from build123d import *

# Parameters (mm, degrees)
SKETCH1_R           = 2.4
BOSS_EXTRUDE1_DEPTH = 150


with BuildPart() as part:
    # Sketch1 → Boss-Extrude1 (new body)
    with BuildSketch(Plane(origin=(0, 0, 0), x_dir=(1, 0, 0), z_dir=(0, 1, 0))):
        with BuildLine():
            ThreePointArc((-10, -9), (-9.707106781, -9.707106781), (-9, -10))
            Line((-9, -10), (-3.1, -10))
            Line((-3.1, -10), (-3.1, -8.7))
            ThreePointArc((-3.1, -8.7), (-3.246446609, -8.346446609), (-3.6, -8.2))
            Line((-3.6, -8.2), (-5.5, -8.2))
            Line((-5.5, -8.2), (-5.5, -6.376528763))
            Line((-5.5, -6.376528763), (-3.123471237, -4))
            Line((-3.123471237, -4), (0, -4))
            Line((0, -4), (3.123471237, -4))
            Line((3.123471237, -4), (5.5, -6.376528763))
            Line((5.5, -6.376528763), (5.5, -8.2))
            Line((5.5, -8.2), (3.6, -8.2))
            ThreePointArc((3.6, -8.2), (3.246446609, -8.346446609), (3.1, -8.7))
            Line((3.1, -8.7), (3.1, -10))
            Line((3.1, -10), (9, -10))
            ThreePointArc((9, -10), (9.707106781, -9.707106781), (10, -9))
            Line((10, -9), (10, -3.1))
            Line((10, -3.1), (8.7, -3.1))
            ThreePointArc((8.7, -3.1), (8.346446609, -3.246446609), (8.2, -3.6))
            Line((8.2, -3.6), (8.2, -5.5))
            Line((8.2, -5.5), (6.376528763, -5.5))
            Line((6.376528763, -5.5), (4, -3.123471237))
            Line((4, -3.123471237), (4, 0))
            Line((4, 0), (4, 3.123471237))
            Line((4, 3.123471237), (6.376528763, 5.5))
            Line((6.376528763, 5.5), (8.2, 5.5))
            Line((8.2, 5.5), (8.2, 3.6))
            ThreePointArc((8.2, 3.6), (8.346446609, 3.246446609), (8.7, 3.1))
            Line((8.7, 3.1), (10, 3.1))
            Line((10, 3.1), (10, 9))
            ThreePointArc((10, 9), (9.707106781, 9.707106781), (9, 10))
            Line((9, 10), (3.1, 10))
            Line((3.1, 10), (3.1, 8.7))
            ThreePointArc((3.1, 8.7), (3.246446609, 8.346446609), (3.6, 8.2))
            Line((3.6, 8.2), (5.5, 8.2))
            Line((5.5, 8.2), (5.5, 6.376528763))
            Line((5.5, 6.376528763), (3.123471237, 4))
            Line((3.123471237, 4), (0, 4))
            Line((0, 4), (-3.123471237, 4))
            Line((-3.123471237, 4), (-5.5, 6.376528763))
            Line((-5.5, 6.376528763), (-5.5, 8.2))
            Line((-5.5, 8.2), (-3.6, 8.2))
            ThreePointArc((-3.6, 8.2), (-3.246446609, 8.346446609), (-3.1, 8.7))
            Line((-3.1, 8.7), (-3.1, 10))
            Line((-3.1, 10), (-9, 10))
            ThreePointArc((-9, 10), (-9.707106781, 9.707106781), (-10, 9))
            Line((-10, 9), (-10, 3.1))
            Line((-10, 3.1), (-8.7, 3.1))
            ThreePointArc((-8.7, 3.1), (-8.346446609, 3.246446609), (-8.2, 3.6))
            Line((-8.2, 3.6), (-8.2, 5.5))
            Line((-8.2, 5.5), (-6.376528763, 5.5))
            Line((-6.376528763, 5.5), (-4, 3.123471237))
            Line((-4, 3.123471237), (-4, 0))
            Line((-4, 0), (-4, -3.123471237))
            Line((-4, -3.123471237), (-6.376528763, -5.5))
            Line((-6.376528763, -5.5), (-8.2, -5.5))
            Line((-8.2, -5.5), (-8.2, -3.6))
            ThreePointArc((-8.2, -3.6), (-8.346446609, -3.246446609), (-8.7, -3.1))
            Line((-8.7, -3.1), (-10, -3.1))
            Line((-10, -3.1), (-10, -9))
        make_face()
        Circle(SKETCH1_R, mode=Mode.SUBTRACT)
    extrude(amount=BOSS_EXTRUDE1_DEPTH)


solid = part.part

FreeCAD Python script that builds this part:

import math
import FreeCAD as App
import Part
import Sketcher
from FreeCAD import Vector

doc = App.newDocument("Part")
body = doc.addObject("PartDesign::Body", "Body")

# Sketch on XZ plane
sketch1 = body.newObject("Sketcher::SketchObject", "Sketch")
sketch1.AttachmentSupport = (doc.getObject("XZ_Plane"), [""])
sketch1.MapMode = "FlatFace"
sketch1.addGeometry(Part.ArcOfCircle(Part.Circle(Vector(-9, 9, 0), Vector(0, 0, 1), 1), math.radians(90), math.radians(180)), False)
sketch1.addGeometry(Part.LineSegment(Vector(-9, 10, 0), Vector(-3.1, 10, 0)), False)
sketch1.addGeometry(Part.LineSegment(Vector(-3.1, 10, 0), Vector(-3.1, 8.7, 0)), False)
sketch1.addGeometry(Part.ArcOfCircle(Part.Circle(Vector(-3.6, 8.7, 0), Vector(0, 0, 1), 0.5), math.radians(-90), math.radians(0)), False)
sketch1.addGeometry(Part.LineSegment(Vector(-3.6, 8.2, 0), Vector(-5.5, 8.2, 0)), False)
sketch1.addGeometry(Part.LineSegment(Vector(-5.5, 8.2, 0), Vector(-5.5, 6.38, 0)), False)
sketch1.addGeometry(Part.LineSegment(Vector(-5.5, 6.38, 0), Vector(-3.12, 4, 0)), False)
sketch1.addGeometry(Part.LineSegment(Vector(-3.12, 4, 0), Vector(3.12, 4, 0)), False)
sketch1.addGeometry(Part.LineSegment(Vector(3.12, 4, 0), Vector(5.5, 6.38, 0)), False)
sketch1.addGeometry(Part.LineSegment(Vector(5.5, 6.38, 0), Vector(5.5, 8.2, 0)), False)
sketch1.addGeometry(Part.LineSegment(Vector(5.5, 8.2, 0), Vector(3.6, 8.2, 0)), False)
sketch1.addGeometry(Part.ArcOfCircle(Part.Circle(Vector(3.6, 8.7, 0), Vector(0, 0, 1), 0.5), math.radians(180), math.radians(270)), False)
sketch1.addGeometry(Part.LineSegment(Vector(3.1, 8.7, 0), Vector(3.1, 10, 0)), False)
sketch1.addGeometry(Part.LineSegment(Vector(3.1, 10, 0), Vector(9, 10, 0)), False)
sketch1.addGeometry(Part.ArcOfCircle(Part.Circle(Vector(9, 9, 0), Vector(0, 0, 1), 1), math.radians(0), math.radians(90)), False)
sketch1.addGeometry(Part.LineSegment(Vector(10, 9, 0), Vector(10, 3.1, 0)), False)
sketch1.addGeometry(Part.LineSegment(Vector(10, 3.1, 0), Vector(8.7, 3.1, 0)), False)
sketch1.addGeometry(Part.ArcOfCircle(Part.Circle(Vector(8.7, 3.6, 0), Vector(0, 0, 1), 0.5), math.radians(180), math.radians(270)), False)
sketch1.addGeometry(Part.LineSegment(Vector(8.2, 3.6, 0), Vector(8.2, 5.5, 0)), False)
sketch1.addGeometry(Part.LineSegment(Vector(8.2, 5.5, 0), Vector(6.38, 5.5, 0)), False)
sketch1.addGeometry(Part.LineSegment(Vector(6.38, 5.5, 0), Vector(4, 3.12, 0)), False)
sketch1.addGeometry(Part.LineSegment(Vector(4, 3.12, 0), Vector(4, -3.12, 0)), False)
sketch1.addGeometry(Part.LineSegment(Vector(4, -3.12, 0), Vector(6.38, -5.5, 0)), False)
sketch1.addGeometry(Part.LineSegment(Vector(6.38, -5.5, 0), Vector(8.2, -5.5, 0)), False)
sketch1.addGeometry(Part.LineSegment(Vector(8.2, -5.5, 0), Vector(8.2, -3.6, 0)), False)
sketch1.addGeometry(Part.ArcOfCircle(Part.Circle(Vector(8.7, -3.6, 0), Vector(0, 0, 1), 0.5), math.radians(90), math.radians(180)), False)
sketch1.addGeometry(Part.LineSegment(Vector(8.7, -3.1, 0), Vector(10, -3.1, 0)), False)
sketch1.addGeometry(Part.LineSegment(Vector(10, -3.1, 0), Vector(10, -9, 0)), False)
sketch1.addGeometry(Part.ArcOfCircle(Part.Circle(Vector(9, -9, 0), Vector(0, 0, 1), 1), math.radians(-90), math.radians(0)), False)
sketch1.addGeometry(Part.LineSegment(Vector(9, -10, 0), Vector(3.1, -10, 0)), False)
sketch1.addGeometry(Part.LineSegment(Vector(3.1, -10, 0), Vector(3.1, -8.7, 0)), False)
sketch1.addGeometry(Part.ArcOfCircle(Part.Circle(Vector(3.6, -8.7, 0), Vector(0, 0, 1), 0.5), math.radians(90), math.radians(180)), False)
sketch1.addGeometry(Part.LineSegment(Vector(3.6, -8.2, 0), Vector(5.5, -8.2, 0)), False)
sketch1.addGeometry(Part.LineSegment(Vector(5.5, -8.2, 0), Vector(5.5, -6.38, 0)), False)
sketch1.addGeometry(Part.LineSegment(Vector(5.5, -6.38, 0), Vector(3.12, -4, 0)), False)
sketch1.addGeometry(Part.LineSegment(Vector(3.12, -4, 0), Vector(-3.12, -4, 0)), False)
sketch1.addGeometry(Part.LineSegment(Vector(-3.12, -4, 0), Vector(-5.5, -6.38, 0)), False)
sketch1.addGeometry(Part.LineSegment(Vector(-5.5, -6.38, 0), Vector(-5.5, -8.2, 0)), False)
sketch1.addGeometry(Part.LineSegment(Vector(-5.5, -8.2, 0), Vector(-3.6, -8.2, 0)), False)
sketch1.addGeometry(Part.ArcOfCircle(Part.Circle(Vector(-3.6, -8.7, 0), Vector(0, 0, 1), 0.5), math.radians(0), math.radians(90)), False)
sketch1.addGeometry(Part.LineSegment(Vector(-3.1, -8.7, 0), Vector(-3.1, -10, 0)), False)
sketch1.addGeometry(Part.LineSegment(Vector(-3.1, -10, 0), Vector(-9, -10, 0)), False)
sketch1.addGeometry(Part.ArcOfCircle(Part.Circle(Vector(-9, -9, 0), Vector(0, 0, 1), 1), math.radians(-180), math.radians(-90)), False)
sketch1.addGeometry(Part.LineSegment(Vector(-10, -9, 0), Vector(-10, -3.1, 0)), False)
sketch1.addGeometry(Part.LineSegment(Vector(-10, -3.1, 0), Vector(-8.7, -3.1, 0)), False)
sketch1.addGeometry(Part.ArcOfCircle(Part.Circle(Vector(-8.7, -3.6, 0), Vector(0, 0, 1), 0.5), math.radians(0), math.radians(90)), False)
sketch1.addGeometry(Part.LineSegment(Vector(-8.2, -3.6, 0), Vector(-8.2, -5.5, 0)), False)
sketch1.addGeometry(Part.LineSegment(Vector(-8.2, -5.5, 0), Vector(-6.38, -5.5, 0)), False)
sketch1.addGeometry(Part.LineSegment(Vector(-6.38, -5.5, 0), Vector(-4, -3.12, 0)), False)
sketch1.addGeometry(Part.LineSegment(Vector(-4, -3.12, 0), Vector(-4, 3.12, 0)), False)
sketch1.addGeometry(Part.LineSegment(Vector(-4, 3.12, 0), Vector(-6.38, 5.5, 0)), False)
sketch1.addGeometry(Part.LineSegment(Vector(-6.38, 5.5, 0), Vector(-8.2, 5.5, 0)), False)
sketch1.addGeometry(Part.LineSegment(Vector(-8.2, 5.5, 0), Vector(-8.2, 3.6, 0)), False)
sketch1.addGeometry(Part.ArcOfCircle(Part.Circle(Vector(-8.7, 3.6, 0), Vector(0, 0, 1), 0.5), math.radians(-90), math.radians(0)), False)
sketch1.addGeometry(Part.LineSegment(Vector(-8.7, 3.1, 0), Vector(-10, 3.1, 0)), False)
sketch1.addGeometry(Part.LineSegment(Vector(-10, 3.1, 0), Vector(-10, 9, 0)), False)
sketch1.addGeometry(Part.Circle(Vector(0, 0, 0), Vector(0, 0, 1), 2.4), False)
sketch1.addConstraint(Sketcher.Constraint("Tangent", 0, 1, 1, 1))
sketch1.addConstraint(Sketcher.Constraint("Coincident", 1, 2, 2, 1))
sketch1.addConstraint(Sketcher.Constraint("Tangent", 2, 2, 3, 2))
sketch1.addConstraint(Sketcher.Constraint("Tangent", 3, 1, 4, 1))
sketch1.addConstraint(Sketcher.Constraint("Coincident", 4, 2, 5, 1))
sketch1.addConstraint(Sketcher.Constraint("Coincident", 5, 2, 6, 1))
sketch1.addConstraint(Sketcher.Constraint("Coincident", 6, 2, 7, 1))
sketch1.addConstraint(Sketcher.Constraint("Coincident", 7, 2, 8, 1))
sketch1.addConstraint(Sketcher.Constraint("Coincident", 8, 2, 9, 1))
sketch1.addConstraint(Sketcher.Constraint("Coincident", 9, 2, 10, 1))
sketch1.addConstraint(Sketcher.Constraint("Tangent", 10, 2, 11, 2))
sketch1.addConstraint(Sketcher.Constraint("Tangent", 11, 1, 12, 1))
sketch1.addConstraint(Sketcher.Constraint("Coincident", 12, 2, 13, 1))
sketch1.addConstraint(Sketcher.Constraint("Tangent", 13, 2, 14, 2))
sketch1.addConstraint(Sketcher.Constraint("Tangent", 14, 1, 15, 1))
sketch1.addConstraint(Sketcher.Constraint("Coincident", 15, 2, 16, 1))
sketch1.addConstraint(Sketcher.Constraint("Tangent", 16, 2, 17, 2))
sketch1.addConstraint(Sketcher.Constraint("Tangent", 17, 1, 18, 1))
sketch1.addConstraint(Sketcher.Constraint("Coincident", 18, 2, 19, 1))
sketch1.addConstraint(Sketcher.Constraint("Coincident", 19, 2, 20, 1))
sketch1.addConstraint(Sketcher.Constraint("Coincident", 20, 2, 21, 1))
sketch1.addConstraint(Sketcher.Constraint("Coincident", 21, 2, 22, 1))
sketch1.addConstraint(Sketcher.Constraint("Coincident", 22, 2, 23, 1))
sketch1.addConstraint(Sketcher.Constraint("Coincident", 23, 2, 24, 1))
sketch1.addConstraint(Sketcher.Constraint("Tangent", 24, 2, 25, 2))
sketch1.addConstraint(Sketcher.Constraint("Tangent", 25, 1, 26, 1))
sketch1.addConstraint(Sketcher.Constraint("Coincident", 26, 2, 27, 1))
sketch1.addConstraint(Sketcher.Constraint("Tangent", 27, 2, 28, 2))
sketch1.addConstraint(Sketcher.Constraint("Tangent", 28, 1, 29, 1))
sketch1.addConstraint(Sketcher.Constraint("Coincident", 29, 2, 30, 1))
sketch1.addConstraint(Sketcher.Constraint("Tangent", 30, 2, 31, 2))
sketch1.addConstraint(Sketcher.Constraint("Tangent", 31, 1, 32, 1))
sketch1.addConstraint(Sketcher.Constraint("Coincident", 32, 2, 33, 1))
sketch1.addConstraint(Sketcher.Constraint("Coincident", 33, 2, 34, 1))
sketch1.addConstraint(Sketcher.Constraint("Coincident", 34, 2, 35, 1))
sketch1.addConstraint(Sketcher.Constraint("Coincident", 35, 2, 36, 1))
sketch1.addConstraint(Sketcher.Constraint("Coincident", 36, 2, 37, 1))
sketch1.addConstraint(Sketcher.Constraint("Coincident", 37, 2, 38, 1))
sketch1.addConstraint(Sketcher.Constraint("Tangent", 38, 2, 39, 2))
sketch1.addConstraint(Sketcher.Constraint("Tangent", 39, 1, 40, 1))
sketch1.addConstraint(Sketcher.Constraint("Coincident", 40, 2, 41, 1))
sketch1.addConstraint(Sketcher.Constraint("Tangent", 41, 2, 42, 2))
sketch1.addConstraint(Sketcher.Constraint("Tangent", 42, 1, 43, 1))
sketch1.addConstraint(Sketcher.Constraint("Coincident", 43, 2, 44, 1))
sketch1.addConstraint(Sketcher.Constraint("Tangent", 44, 2, 45, 2))
sketch1.addConstraint(Sketcher.Constraint("Tangent", 45, 1, 46, 1))
sketch1.addConstraint(Sketcher.Constraint("Coincident", 46, 2, 47, 1))
sketch1.addConstraint(Sketcher.Constraint("Coincident", 47, 2, 48, 1))
sketch1.addConstraint(Sketcher.Constraint("Coincident", 48, 2, 49, 1))
sketch1.addConstraint(Sketcher.Constraint("Coincident", 49, 2, 50, 1))
sketch1.addConstraint(Sketcher.Constraint("Coincident", 50, 2, 51, 1))
sketch1.addConstraint(Sketcher.Constraint("Coincident", 51, 2, 52, 1))
sketch1.addConstraint(Sketcher.Constraint("Tangent", 52, 2, 53, 2))
sketch1.addConstraint(Sketcher.Constraint("Tangent", 53, 1, 54, 1))
sketch1.addConstraint(Sketcher.Constraint("Coincident", 54, 2, 55, 1))
sketch1.addConstraint(Sketcher.Constraint("Tangent", 55, 2, 0, 2))
sketch1.addConstraint(Sketcher.Constraint("Horizontal", 1))
sketch1.addConstraint(Sketcher.Constraint("Vertical", 2))
sketch1.addConstraint(Sketcher.Constraint("Horizontal", 4))
sketch1.addConstraint(Sketcher.Constraint("Vertical", 5))
sketch1.addConstraint(Sketcher.Constraint("Horizontal", 7))
sketch1.addConstraint(Sketcher.Constraint("Vertical", 9))
sketch1.addConstraint(Sketcher.Constraint("Horizontal", 10))
sketch1.addConstraint(Sketcher.Constraint("Vertical", 12))
sketch1.addConstraint(Sketcher.Constraint("Horizontal", 13))
sketch1.addConstraint(Sketcher.Constraint("Vertical", 15))
sketch1.addConstraint(Sketcher.Constraint("Horizontal", 16))
sketch1.addConstraint(Sketcher.Constraint("Vertical", 18))
sketch1.addConstraint(Sketcher.Constraint("Horizontal", 19))
sketch1.addConstraint(Sketcher.Constraint("Vertical", 21))
sketch1.addConstraint(Sketcher.Constraint("Horizontal", 23))
sketch1.addConstraint(Sketcher.Constraint("Vertical", 24))
sketch1.addConstraint(Sketcher.Constraint("Horizontal", 26))
sketch1.addConstraint(Sketcher.Constraint("Vertical", 27))
sketch1.addConstraint(Sketcher.Constraint("Horizontal", 29))
sketch1.addConstraint(Sketcher.Constraint("Vertical", 30))
sketch1.addConstraint(Sketcher.Constraint("Horizontal", 32))
sketch1.addConstraint(Sketcher.Constraint("Vertical", 33))
sketch1.addConstraint(Sketcher.Constraint("Horizontal", 35))
sketch1.addConstraint(Sketcher.Constraint("Vertical", 37))
sketch1.addConstraint(Sketcher.Constraint("Horizontal", 38))
sketch1.addConstraint(Sketcher.Constraint("Vertical", 40))
sketch1.addConstraint(Sketcher.Constraint("Horizontal", 41))
sketch1.addConstraint(Sketcher.Constraint("Vertical", 43))
sketch1.addConstraint(Sketcher.Constraint("Horizontal", 44))
sketch1.addConstraint(Sketcher.Constraint("Vertical", 46))
sketch1.addConstraint(Sketcher.Constraint("Horizontal", 47))
sketch1.addConstraint(Sketcher.Constraint("Vertical", 49))
sketch1.addConstraint(Sketcher.Constraint("Horizontal", 51))
sketch1.addConstraint(Sketcher.Constraint("Vertical", 52))
sketch1.addConstraint(Sketcher.Constraint("Horizontal", 54))
sketch1.addConstraint(Sketcher.Constraint("Vertical", 55))
sketch1.addConstraint(Sketcher.Constraint("Coincident", 56, 3, -1, 1))
sketch1.addConstraint(Sketcher.Constraint("Equal", 3, 11))
sketch1.addConstraint(Sketcher.Constraint("Equal", 0, 14))
sketch1.addConstraint(Sketcher.Constraint("Equal", 11, 17))
sketch1.addConstraint(Sketcher.Constraint("Equal", 17, 25))
sketch1.addConstraint(Sketcher.Constraint("Equal", 14, 28))
sketch1.addConstraint(Sketcher.Constraint("Equal", 25, 31))
sketch1.addConstraint(Sketcher.Constraint("Equal", 31, 39))
sketch1.addConstraint(Sketcher.Constraint("Equal", 28, 42))
sketch1.addConstraint(Sketcher.Constraint("Equal", 39, 45))
sketch1.addConstraint(Sketcher.Constraint("Equal", 45, 53))
sketch1.addConstraint(Sketcher.Constraint("Symmetric", 0, 3, 28, 3, -1, 1))
sketch1.addConstraint(Sketcher.Constraint("Symmetric", 3, 3, 31, 3, -1, 1))
sketch1.addConstraint(Sketcher.Constraint("Symmetric", 11, 3, 39, 3, -1, 1))
sketch1.addConstraint(Sketcher.Constraint("Symmetric", 14, 3, 42, 3, -1, 1))
sketch1.addConstraint(Sketcher.Constraint("Symmetric", 17, 3, 45, 3, -1, 1))
sketch1.addConstraint(Sketcher.Constraint("Symmetric", 25, 3, 53, 3, -1, 1))
sketch1.addConstraint(Sketcher.Constraint("Symmetric", 5, 2, 33, 2, -1, 1))
sketch1.addConstraint(Sketcher.Constraint("Symmetric", 6, 2, 34, 2, -1, 1))
sketch1.addConstraint(Sketcher.Constraint("Symmetric", 8, 2, 36, 2, -1, 1))
sketch1.addConstraint(Sketcher.Constraint("Symmetric", 19, 2, 47, 2, -1, 1))
sketch1.addConstraint(Sketcher.Constraint("Symmetric", 20, 2, 48, 2, -1, 1))
sketch1.addConstraint(Sketcher.Constraint("Symmetric", 22, 2, 50, 2, -1, 1))
sketch1.addConstraint(Sketcher.Constraint("Symmetric", 3, 3, 11, 3, -2))
sketch1.addConstraint(Sketcher.Constraint("Symmetric", 0, 3, 14, 3, -2))
sketch1.addConstraint(Sketcher.Constraint("Symmetric", 25, 3, 45, 3, -2))
sketch1.addConstraint(Sketcher.Constraint("Symmetric", 5, 2, 8, 2, -2))
sketch1.addConstraint(Sketcher.Constraint("Symmetric", 22, 2, 47, 2, -2))
sketch1.addConstraint(Sketcher.Constraint("Perpendicular", 6, 8))
sketch1.addConstraint(Sketcher.Constraint("Parallel", 8, 20))
sketch1.addConstraint(Sketcher.Constraint("Perpendicular", 20, 22))
sketch1.addConstraint(Sketcher.Constraint("Perpendicular", 34, 36))
sketch1.addConstraint(Sketcher.Constraint("Perpendicular", 48, 50))
sketch1.addConstraint(Sketcher.Constraint("Horizontal", 21, 2, 48, 2))
sketch1.addConstraint(Sketcher.Constraint("Equal", 54, 2))
sketch1.addConstraint(Sketcher.Constraint("Equal", 51, 5))
sketch1.addConstraint(Sketcher.Constraint("Equal", 41, 15))
sketch1.addConstraint(Sketcher.Constraint("Equal", 38, 18))
sketch1.addConstraint(Sketcher.Constraint("Equal", 35, 21))
sketch1.addConstraint(Sketcher.Constraint("Equal", 8, 20))
sketch1.addConstraint(Sketcher.Constraint("Radius", 0, 1.0))
sketch1.addConstraint(Sketcher.Constraint("Diameter", 56, 4.8))
sketch1.addConstraint(Sketcher.Constraint("Radius", 3, 0.5))
sketch1.addConstraint(Sketcher.Constraint("DistanceX", 1, 1, 1, 2, 5.9))
sketch1.addConstraint(Sketcher.Constraint("DistanceX", 4, 2, 4, 1, 1.9))
sketch1.addConstraint(Sketcher.Constraint("DistanceX", 16, 2, 16, 1, 1.3))
sketch1.addConstraint(Sketcher.Constraint("DistanceX", 0, 3, -1, 1, 9.0))
sketch1.addConstraint(Sketcher.Constraint("DistanceY", -1, 1, 6, 2, 4.0))
sketch1.addConstraint(Sketcher.Constraint("DistanceX", 19, 2, 19, 1, 1.823471))
pad1 = body.newObject("PartDesign::Pad", "Pad")
pad1.Profile = sketch1
pad1.Length = 150
pad1.Reversed = True

doc.recompute()
